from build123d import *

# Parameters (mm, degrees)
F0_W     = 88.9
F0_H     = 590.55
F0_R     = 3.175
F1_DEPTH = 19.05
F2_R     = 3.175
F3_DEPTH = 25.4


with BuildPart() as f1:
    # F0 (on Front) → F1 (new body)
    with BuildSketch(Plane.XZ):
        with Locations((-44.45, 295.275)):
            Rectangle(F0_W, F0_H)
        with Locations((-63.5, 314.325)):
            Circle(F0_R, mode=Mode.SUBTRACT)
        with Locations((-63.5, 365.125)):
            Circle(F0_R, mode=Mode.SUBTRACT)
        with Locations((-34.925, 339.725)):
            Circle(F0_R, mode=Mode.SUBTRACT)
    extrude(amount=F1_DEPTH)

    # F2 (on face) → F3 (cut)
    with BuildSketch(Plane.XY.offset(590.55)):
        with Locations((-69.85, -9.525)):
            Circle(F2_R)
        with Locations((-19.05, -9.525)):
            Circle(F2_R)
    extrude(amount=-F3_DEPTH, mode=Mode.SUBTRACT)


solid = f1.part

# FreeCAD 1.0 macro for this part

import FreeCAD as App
import Part
import Sketcher
Q = App.Units.Quantity


def add_polygon(sketch, points):
    """Adds a closed chain of lines whose ends are joined by coincident constraints."""
    first, n = sketch.GeometryCount, len(points)
    for a, b in zip(points, points[1:] + points[:1]):
        sketch.addGeometry(Part.LineSegment(App.Vector(*a, 0), App.Vector(*b, 0)), False)
    for i in range(n):
        sketch.addConstraint(Sketcher.Constraint("Coincident", first + i, 2, first + (i + 1) % n, 1))

doc = App.newDocument("Part")
body = doc.addObject("PartDesign::Body", "Body")

# Sketch on XZ plane
sketch1 = body.newObject("Sketcher::SketchObject", "Sketch")
sketch1.AttachmentSupport = (doc.getObject("XZ_Plane"), [""])
sketch1.MapMode = "FlatFace"
add_polygon(sketch1, [(-88.9, 590.5), (-88.9, 0), (0, 0), (0, 590.5)])  # lines 0-3
sketch1.addGeometry(Part.Circle(App.Vector(-63.5, 314.3, 0), App.Vector(0, 0, 1), 3.2), False)  # 4
sketch1.addGeometry(Part.Circle(App.Vector(-63.5, 365.1, 0), App.Vector(0, 0, 1), 3.2), False)  # 5
sketch1.addGeometry(Part.Circle(App.Vector(-34.9, 339.7, 0), App.Vector(0, 0, 1), 3.2), False)  # 6
sketch1.addConstraint(Sketcher.Constraint("Vertical", 0))
sketch1.addConstraint(Sketcher.Constraint("Horizontal", 1))
sketch1.addConstraint(Sketcher.Constraint("Vertical", 2))
sketch1.addConstraint(Sketcher.Constraint("Horizontal", 3))
sketch1.addConstraint(Sketcher.Constraint("Coincident", 1, 2, -1, 1))
sketch1.addConstraint(Sketcher.Constraint("Equal", 4, 5))
sketch1.addConstraint(Sketcher.Constraint("Equal", 5, 6))
sketch1.addConstraint(Sketcher.Constraint("Vertical", 4, 3, 5, 3))
sketch1.addConstraint(Sketcher.Constraint("Diameter", 4, Q("0.25 in")))
sketch1.addConstraint(Sketcher.Constraint("DistanceX", 1, 1, 1, 2, Q("3.5 in")))
sketch1.addConstraint(Sketcher.Constraint("DistanceY", 4, 3, 5, 3, Q("2 in")))
sketch1.addConstraint(Sketcher.Constraint("DistanceY", 6, 3, 5, 3, Q("1 in")))
sketch1.addConstraint(Sketcher.Constraint("DistanceX", 0, 2, 4, 3, Q("1 in")))
sketch1.addConstraint(Sketcher.Constraint("DistanceY", 0, 2, 0, 1, Q("23.25 in")))
sketch1.addConstraint(Sketcher.Constraint("DistanceY", -1, 1, 4, 3, Q("12.375 in")))
sketch1.addConstraint(Sketcher.Constraint("DistanceX", 6, 3, -1, 1, Q("1.375 in")))
pad1 = body.newObject("PartDesign::Pad", "Pad")
pad1.Profile = sketch1
pad1.Length = Q("0.75 in")

# Sketch on XY plane
sketch2 = body.newObject("Sketcher::SketchObject", "Sketch001")
sketch2.AttachmentSupport = (doc.getObject("XY_Plane"), [""])
sketch2.MapMode = "FlatFace"
sketch2.AttachmentOffset = App.Placement(App.Vector(0, 0, 23.25 * 25.4), App.Rotation())
sketch2.addGeometry(Part.Circle(App.Vector(-69.8, -9.5, 0), App.Vector(0, 0, 1), 3.2), False)
sketch2.addGeometry(Part.Circle(App.Vector(-19.1, -9.5, 0), App.Vector(0, 0, 1), 3.2), False)
sketch2.addConstraint(Sketcher.Constraint("Equal", 0, 1))
sketch2.addConstraint(Sketcher.Constraint("Horizontal", 0, 3, 1, 3))
sketch2.addConstraint(Sketcher.Constraint("Diameter", 0, Q("0.25 in")))
sketch2.addConstraint(Sketcher.Constraint("DistanceX", 0, 3, 1, 3, Q("2 in")))
sketch2.addConstraint(Sketcher.Constraint("DistanceX", 0, 3, -1, 1, Q("2.75 in")))
sketch2.addConstraint(Sketcher.Constraint("DistanceY", 0, 3, -1, 1, Q("0.375 in")))
pocket1 = body.newObject("PartDesign::Pocket", "Pocket")
pocket1.Profile = sketch2
pocket1.Length = Q("1 in")

doc.recompute()
